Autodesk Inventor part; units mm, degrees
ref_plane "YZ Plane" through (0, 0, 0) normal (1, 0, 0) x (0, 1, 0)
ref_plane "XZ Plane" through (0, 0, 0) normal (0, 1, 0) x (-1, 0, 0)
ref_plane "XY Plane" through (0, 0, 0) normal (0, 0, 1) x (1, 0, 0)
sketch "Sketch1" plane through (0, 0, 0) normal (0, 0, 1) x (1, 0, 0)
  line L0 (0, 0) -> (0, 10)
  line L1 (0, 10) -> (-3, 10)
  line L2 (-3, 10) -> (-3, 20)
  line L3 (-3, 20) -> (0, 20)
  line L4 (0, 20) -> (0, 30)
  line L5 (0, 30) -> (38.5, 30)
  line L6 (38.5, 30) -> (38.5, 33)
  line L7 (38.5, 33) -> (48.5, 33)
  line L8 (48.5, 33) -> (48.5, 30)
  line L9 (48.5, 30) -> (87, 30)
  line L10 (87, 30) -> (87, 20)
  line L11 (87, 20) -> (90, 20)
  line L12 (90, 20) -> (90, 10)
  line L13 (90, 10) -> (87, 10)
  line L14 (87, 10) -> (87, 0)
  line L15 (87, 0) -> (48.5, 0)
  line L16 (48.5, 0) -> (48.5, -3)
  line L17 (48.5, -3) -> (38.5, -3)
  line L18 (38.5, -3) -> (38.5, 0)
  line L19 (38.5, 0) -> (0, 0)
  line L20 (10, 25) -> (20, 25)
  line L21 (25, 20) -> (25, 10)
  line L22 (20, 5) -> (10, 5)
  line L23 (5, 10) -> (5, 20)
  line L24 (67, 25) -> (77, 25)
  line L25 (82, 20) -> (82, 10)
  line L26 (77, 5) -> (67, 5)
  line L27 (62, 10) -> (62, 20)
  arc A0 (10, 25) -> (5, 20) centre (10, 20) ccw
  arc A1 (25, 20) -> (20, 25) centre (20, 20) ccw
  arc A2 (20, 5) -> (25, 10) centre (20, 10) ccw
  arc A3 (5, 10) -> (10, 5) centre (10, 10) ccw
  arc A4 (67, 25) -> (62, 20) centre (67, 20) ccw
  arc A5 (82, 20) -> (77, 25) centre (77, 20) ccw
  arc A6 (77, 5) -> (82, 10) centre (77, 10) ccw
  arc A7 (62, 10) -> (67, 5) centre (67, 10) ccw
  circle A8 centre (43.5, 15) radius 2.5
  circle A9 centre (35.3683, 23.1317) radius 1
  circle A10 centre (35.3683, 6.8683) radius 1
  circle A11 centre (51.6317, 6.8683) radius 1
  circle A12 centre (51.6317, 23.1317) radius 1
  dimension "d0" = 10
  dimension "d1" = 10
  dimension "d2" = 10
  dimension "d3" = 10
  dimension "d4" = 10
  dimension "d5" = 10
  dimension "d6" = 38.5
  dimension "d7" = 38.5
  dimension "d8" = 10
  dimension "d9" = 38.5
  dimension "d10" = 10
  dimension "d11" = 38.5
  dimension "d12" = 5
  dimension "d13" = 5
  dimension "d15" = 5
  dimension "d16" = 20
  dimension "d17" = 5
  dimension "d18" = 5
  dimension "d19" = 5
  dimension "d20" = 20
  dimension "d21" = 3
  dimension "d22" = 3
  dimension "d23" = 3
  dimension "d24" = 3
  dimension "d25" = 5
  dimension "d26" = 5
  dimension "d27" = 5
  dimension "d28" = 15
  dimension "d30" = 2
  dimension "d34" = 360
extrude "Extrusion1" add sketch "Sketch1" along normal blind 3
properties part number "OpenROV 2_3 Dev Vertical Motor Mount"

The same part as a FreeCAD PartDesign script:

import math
import FreeCAD as App
import Part
import Sketcher

V = App.Vector

doc = App.newDocument("Part")
body = doc.addObject("PartDesign::Body", "Body")

sketch1 = body.newObject("Sketcher::SketchObject", "Sketch")
sketch1.AttachmentSupport = (doc.getObject("XY_Plane"), [""])
sketch1.MapMode = "FlatFace"
sketch1.addGeometry(Part.LineSegment(V(0, 10, 0), V(0, 0, 0)), False)
sketch1.addGeometry(Part.LineSegment(V(0, 0, 0), V(38.5, 0, 0)), False)
sketch1.addGeometry(Part.LineSegment(V(38.5, 0, 0), V(38.5, -3, 0)), False)
sketch1.addGeometry(Part.LineSegment(V(38.5, -3, 0), V(48.5, -3, 0)), False)
sketch1.addGeometry(Part.LineSegment(V(48.5, -3, 0), V(48.5, 0, 0)), False)
sketch1.addGeometry(Part.LineSegment(V(48.5, 0, 0), V(87, 0, 0)), False)
sketch1.addGeometry(Part.LineSegment(V(87, 0, 0), V(87, 10, 0)), False)
sketch1.addGeometry(Part.LineSegment(V(87, 10, 0), V(90, 10, 0)), False)
sketch1.addGeometry(Part.LineSegment(V(90, 10, 0), V(90, 20, 0)), False)
sketch1.addGeometry(Part.LineSegment(V(90, 20, 0), V(87, 20, 0)), False)
sketch1.addGeometry(Part.LineSegment(V(87, 20, 0), V(87, 30, 0)), False)
sketch1.addGeometry(Part.LineSegment(V(87, 30, 0), V(48.5, 30, 0)), False)
sketch1.addGeometry(Part.LineSegment(V(48.5, 30, 0), V(48.5, 33, 0)), False)
sketch1.addGeometry(Part.LineSegment(V(48.5, 33, 0), V(38.5, 33, 0)), False)
sketch1.addGeometry(Part.LineSegment(V(38.5, 33, 0), V(38.5, 30, 0)), False)
sketch1.addGeometry(Part.LineSegment(V(38.5, 30, 0), V(0, 30, 0)), False)
sketch1.addGeometry(Part.LineSegment(V(0, 30, 0), V(0, 20, 0)), False)
sketch1.addGeometry(Part.LineSegment(V(0, 20, 0), V(-3, 20, 0)), False)
sketch1.addGeometry(Part.LineSegment(V(-3, 20, 0), V(-3, 10, 0)), False)
sketch1.addGeometry(Part.LineSegment(V(-3, 10, 0), V(0, 10, 0)), False)
sketch1.addGeometry(Part.Circle(V(35.4, 6.9, 0), V(0, 0, 1), 1), False)
sketch1.addGeometry(Part.Circle(V(51.6, 6.9, 0), V(0, 0, 1), 1), False)
sketch1.addGeometry(Part.ArcOfCircle(Part.Circle(V(10, 20, 0), V(0, 0, 1), 5), math.radians(90), math.radians(180)), False)
sketch1.addGeometry(Part.LineSegment(V(10, 25, 0), V(20, 25, 0)), False)
sketch1.addGeometry(Part.ArcOfCircle(Part.Circle(V(20, 20, 0), V(0, 0, 1), 5), math.radians(0), math.radians(90)), False)
sketch1.addGeometry(Part.LineSegment(V(25, 20, 0), V(25, 10, 0)), False)
sketch1.addGeometry(Part.ArcOfCircle(Part.Circle(V(20, 10, 0), V(0, 0, 1), 5), math.radians(-90), math.radians(0)), False)
sketch1.addGeometry(Part.LineSegment(V(20, 5, 0), V(10, 5, 0)), False)
sketch1.addGeometry(Part.ArcOfCircle(Part.Circle(V(10, 10, 0), V(0, 0, 1), 5), math.radians(180), math.radians(270)), False)
sketch1.addGeometry(Part.LineSegment(V(5, 10, 0), V(5, 20, 0)), False)
sketch1.addGeometry(Part.Circle(V(35.4, 23.1, 0), V(0, 0, 1), 1), False)
sketch1.addGeometry(Part.Circle(V(43.5, 15, 0), V(0, 0, 1), 2.5), False)
sketch1.addGeometry(Part.Circle(V(51.6, 23.1, 0), V(0, 0, 1), 1), False)
sketch1.addGeometry(Part.ArcOfCircle(Part.Circle(V(67, 20, 0), V(0, 0, 1), 5), math.radians(90), math.radians(180)), False)
sketch1.addGeometry(Part.LineSegment(V(67, 25, 0), V(77, 25, 0)), False)
sketch1.addGeometry(Part.ArcOfCircle(Part.Circle(V(77, 20, 0), V(0, 0, 1), 5), math.radians(0), math.radians(90)), False)
sketch1.addGeometry(Part.LineSegment(V(82, 20, 0), V(82, 10, 0)), False)
sketch1.addGeometry(Part.ArcOfCircle(Part.Circle(V(77, 10, 0), V(0, 0, 1), 5), math.radians(-90), math.radians(0)), False)
sketch1.addGeometry(Part.LineSegment(V(77, 5, 0), V(67, 5, 0)), False)
sketch1.addGeometry(Part.ArcOfCircle(Part.Circle(V(67, 10, 0), V(0, 0, 1), 5), math.radians(180), math.radians(270)), False)
sketch1.addGeometry(Part.LineSegment(V(62, 10, 0), V(62, 20, 0)), False)
sketch1.addConstraint(Sketcher.Constraint("Coincident", 0, 2, 1, 1))
sketch1.addConstraint(Sketcher.Constraint("Coincident", 1, 2, 2, 1))
sketch1.addConstraint(Sketcher.Constraint("Coincident", 2, 2, 3, 1))
sketch1.addConstraint(Sketcher.Constraint("Coincident", 3, 2, 4, 1))
sketch1.addConstraint(Sketcher.Constraint("Coincident", 4, 2, 5, 1))
sketch1.addConstraint(Sketcher.Constraint("Coincident", 5, 2, 6, 1))
sketch1.addConstraint(Sketcher.Constraint("Coincident", 6, 2, 7, 1))
sketch1.addConstraint(Sketcher.Constraint("Coincident", 7, 2, 8, 1))
sketch1.addConstraint(Sketcher.Constraint("Coincident", 8, 2, 9, 1))
sketch1.addConstraint(Sketcher.Constraint("Coincident", 9, 2, 10, 1))
sketch1.addConstraint(Sketcher.Constraint("Coincident", 10, 2, 11, 1))
sketch1.addConstraint(Sketcher.Constraint("Coincident", 11, 2, 12, 1))
sketch1.addConstraint(Sketcher.Constraint("Coincident", 12, 2, 13, 1))
sketch1.addConstraint(Sketcher.Constraint("Coincident", 13, 2, 14, 1))
sketch1.addConstraint(Sketcher.Constraint("Coincident", 14, 2, 15, 1))
sketch1.addConstraint(Sketcher.Constraint("Coincident", 15, 2, 16, 1))
sketch1.addConstraint(Sketcher.Constraint("Coincident", 16, 2, 17, 1))
sketch1.addConstraint(Sketcher.Constraint("Coincident", 17, 2, 18, 1))
sketch1.addConstraint(Sketcher.Constraint("Coincident", 18, 2, 19, 1))
sketch1.addConstraint(Sketcher.Constraint("Coincident", 19, 2, 0, 1))
sketch1.addConstraint(Sketcher.Constraint("Tangent", 22, 1, 23, 1))
sketch1.addConstraint(Sketcher.Constraint("Tangent", 23, 2, 24, 2))
sketch1.addConstraint(Sketcher.Constraint("Tangent", 24, 1, 25, 1))
sketch1.addConstraint(Sketcher.Constraint("Tangent", 25, 2, 26, 2))
sketch1.addConstraint(Sketcher.Constraint("Tangent", 26, 1, 27, 1))
sketch1.addConstraint(Sketcher.Constraint("Tangent", 27, 2, 28, 2))
sketch1.addConstraint(Sketcher.Constraint("Tangent", 28, 1, 29, 1))
sketch1.addConstraint(Sketcher.Constraint("Tangent", 29, 2, 22, 2))
sketch1.addConstraint(Sketcher.Constraint("Tangent", 33, 1, 34, 1))
sketch1.addConstraint(Sketcher.Constraint("Tangent", 34, 2, 35, 2))
sketch1.addConstraint(Sketcher.Constraint("Tangent", 35, 1, 36, 1))
sketch1.addConstraint(Sketcher.Constraint("Tangent", 36, 2, 37, 2))
sketch1.addConstraint(Sketcher.Constraint("Tangent", 37, 1, 38, 1))
sketch1.addConstraint(Sketcher.Constraint("Tangent", 38, 2, 39, 2))
sketch1.addConstraint(Sketcher.Constraint("Tangent", 39, 1, 40, 1))
sketch1.addConstraint(Sketcher.Constraint("Tangent", 40, 2, 33, 2))
sketch1.addConstraint(Sketcher.Constraint("Vertical", 0))
sketch1.addConstraint(Sketcher.Constraint("Horizontal", 1))
sketch1.addConstraint(Sketcher.Constraint("Vertical", 2))
sketch1.addConstraint(Sketcher.Constraint("Horizontal", 3))
sketch1.addConstraint(Sketcher.Constraint("Vertical", 4))
sketch1.addConstraint(Sketcher.Constraint("Horizontal", 5))
sketch1.addConstraint(Sketcher.Constraint("Vertical", 6))
sketch1.addConstraint(Sketcher.Constraint("Horizontal", 7))
sketch1.addConstraint(Sketcher.Constraint("Vertical", 8))
sketch1.addConstraint(Sketcher.Constraint("Horizontal", 9))
sketch1.addConstraint(Sketcher.Constraint("Vertical", 10))
sketch1.addConstraint(Sketcher.Constraint("Horizontal", 11))
sketch1.addConstraint(Sketcher.Constraint("Vertical", 12))
sketch1.addConstraint(Sketcher.Constraint("Horizontal", 13))
sketch1.addConstraint(Sketcher.Constraint("Vertical", 14))
sketch1.addConstraint(Sketcher.Constraint("Horizontal", 15))
sketch1.addConstraint(Sketcher.Constraint("Vertical", 16))
sketch1.addConstraint(Sketcher.Constraint("Horizontal", 17))
sketch1.addConstraint(Sketcher.Constraint("Vertical", 18))
sketch1.addConstraint(Sketcher.Constraint("Horizontal", 19))
sketch1.addConstraint(Sketcher.Constraint("Horizontal", 23))
sketch1.addConstraint(Sketcher.Constraint("Vertical", 25))
sketch1.addConstraint(Sketcher.Constraint("Horizontal", 27))
sketch1.addConstraint(Sketcher.Constraint("Vertical", 29))
sketch1.addConstraint(Sketcher.Constraint("Horizontal", 34))
sketch1.addConstraint(Sketcher.Constraint("Vertical", 36))
sketch1.addConstraint(Sketcher.Constraint("Horizontal", 38))
sketch1.addConstraint(Sketcher.Constraint("Vertical", 40))
sketch1.addConstraint(Sketcher.Constraint("Coincident", 0, 2, -1, 1))
sketch1.addConstraint(Sketcher.Constraint("Equal", 20, 21))
sketch1.addConstraint(Sketcher.Constraint("Equal", 22, 24))
sketch1.addConstraint(Sketcher.Constraint("Equal", 24, 26))
sketch1.addConstraint(Sketcher.Constraint("Equal", 26, 28))
sketch1.addConstraint(Sketcher.Constraint("Equal", 21, 30))
sketch1.addConstraint(Sketcher.Constraint("Equal", 30, 32))
sketch1.addConstraint(Sketcher.Constraint("Equal", 28, 33))
sketch1.addConstraint(Sketcher.Constraint("Equal", 33, 35))
sketch1.addConstraint(Sketcher.Constraint("Equal", 35, 37))
sketch1.addConstraint(Sketcher.Constraint("Equal", 37, 39))
sketch1.addConstraint(Sketcher.Constraint("PointOnObject", 4, 2, -1))
sketch1.addConstraint(Sketcher.Constraint("PointOnObject", 15, 2, -2))
sketch1.addConstraint(Sketcher.Constraint("Horizontal", 20, 3, 21, 3))
sketch1.addConstraint(Sketcher.Constraint("Horizontal", 30, 3, 32, 3))
sketch1.addConstraint(Sketcher.Constraint("Horizontal", 24, 3, 33, 3))
sketch1.addConstraint(Sketcher.Constraint("Horizontal", 28, 3, 37, 3))
sketch1.addConstraint(Sketcher.Constraint("Horizontal", 39, 3, 6, 2))
sketch1.addConstraint(Sketcher.Constraint("Horizontal", 35, 3, 8, 2))
sketch1.addConstraint(Sketcher.Constraint("Horizontal", 11, 2, 14, 2))
sketch1.addConstraint(Sketcher.Constraint("Horizontal", 9, 2, 16, 2))
sketch1.addConstraint(Sketcher.Constraint("Horizontal", 7, 2, 18, 2))
sketch1.addConstraint(Sketcher.Constraint("Vertical", 20, 3, 30, 3))
sketch1.addConstraint(Sketcher.Constraint("Vertical", 21, 3, 32, 3))
sketch1.addConstraint(Sketcher.Constraint("Vertical", 6, 2, 9, 2))
sketch1.addConstraint(Sketcher.Constraint("Vertical", 4, 2, 11, 2))
sketch1.addConstraint(Sketcher.Constraint("Vertical", 2, 2, 13, 2))
sketch1.addConstraint(Sketcher.Constraint("Equal", 1, 5))
sketch1.addConstraint(Sketcher.Constraint("Equal", 9, 17))
sketch1.addConstraint(Sketcher.Constraint("Equal", 13, 23))
sketch1.addConstraint(Sketcher.Constraint("Equal", 27, 34))
sketch1.addConstraint(Sketcher.Constraint("Equal", 38, 0))
sketch1.addConstraint(Sketcher.Constraint("Equal", 19, 2))
sketch1.addConstraint(Sketcher.Constraint("Equal", 6, 8))
sketch1.addConstraint(Sketcher.Constraint("Equal", 8, 10))
sketch1.addConstraint(Sketcher.Constraint("Equal", 4, 12))
sketch1.addConstraint(Sketcher.Constraint("Diameter", 20, 2.0))
sketch1.addConstraint(Sketcher.Constraint("Diameter", 31, 5.0))
sketch1.addConstraint(Sketcher.Constraint("Radius", 22, 5.0))
sketch1.addConstraint(Sketcher.Constraint("DistanceX", 3, 1, 3, 2, 10.0))
sketch1.addConstraint(Sketcher.Constraint("DistanceX", 7, 1, 7, 2, 3.0))
sketch1.addConstraint(Sketcher.Constraint("DistanceX", 1, 1, 1, 2, 38.5))
sketch1.addConstraint(Sketcher.Constraint("DistanceX", -1, 1, 22, 3, 10.0))
sketch1.addConstraint(Sketcher.Constraint("DistanceY", -1, 1, 31, 3, 15.0))
sketch1.addConstraint(Sketcher.Constraint("DistanceX", 1, 2, 31, 3, 5.0))
sketch1.addConstraint(Sketcher.Constraint("DistanceX", 37, 3, 5, 2, 10.0))
sketch1.addConstraint(Sketcher.Constraint("DistanceX", -1, 1, 20, 3, 35.3683))
sketch1.addConstraint(Sketcher.Constraint("DistanceY", -1, 1, 20, 3, 6.8683))
sketch1.addConstraint(Sketcher.Constraint("DistanceX", -1, 1, 21, 3, 51.6317))
sketch1.addConstraint(Sketcher.Constraint("DistanceY", -1, 1, 30, 3, 23.1317))
pad1 = body.newObject("PartDesign::Pad", "Pad")
pad1.Profile = sketch1
pad1.Length = 3

doc.recompute()
